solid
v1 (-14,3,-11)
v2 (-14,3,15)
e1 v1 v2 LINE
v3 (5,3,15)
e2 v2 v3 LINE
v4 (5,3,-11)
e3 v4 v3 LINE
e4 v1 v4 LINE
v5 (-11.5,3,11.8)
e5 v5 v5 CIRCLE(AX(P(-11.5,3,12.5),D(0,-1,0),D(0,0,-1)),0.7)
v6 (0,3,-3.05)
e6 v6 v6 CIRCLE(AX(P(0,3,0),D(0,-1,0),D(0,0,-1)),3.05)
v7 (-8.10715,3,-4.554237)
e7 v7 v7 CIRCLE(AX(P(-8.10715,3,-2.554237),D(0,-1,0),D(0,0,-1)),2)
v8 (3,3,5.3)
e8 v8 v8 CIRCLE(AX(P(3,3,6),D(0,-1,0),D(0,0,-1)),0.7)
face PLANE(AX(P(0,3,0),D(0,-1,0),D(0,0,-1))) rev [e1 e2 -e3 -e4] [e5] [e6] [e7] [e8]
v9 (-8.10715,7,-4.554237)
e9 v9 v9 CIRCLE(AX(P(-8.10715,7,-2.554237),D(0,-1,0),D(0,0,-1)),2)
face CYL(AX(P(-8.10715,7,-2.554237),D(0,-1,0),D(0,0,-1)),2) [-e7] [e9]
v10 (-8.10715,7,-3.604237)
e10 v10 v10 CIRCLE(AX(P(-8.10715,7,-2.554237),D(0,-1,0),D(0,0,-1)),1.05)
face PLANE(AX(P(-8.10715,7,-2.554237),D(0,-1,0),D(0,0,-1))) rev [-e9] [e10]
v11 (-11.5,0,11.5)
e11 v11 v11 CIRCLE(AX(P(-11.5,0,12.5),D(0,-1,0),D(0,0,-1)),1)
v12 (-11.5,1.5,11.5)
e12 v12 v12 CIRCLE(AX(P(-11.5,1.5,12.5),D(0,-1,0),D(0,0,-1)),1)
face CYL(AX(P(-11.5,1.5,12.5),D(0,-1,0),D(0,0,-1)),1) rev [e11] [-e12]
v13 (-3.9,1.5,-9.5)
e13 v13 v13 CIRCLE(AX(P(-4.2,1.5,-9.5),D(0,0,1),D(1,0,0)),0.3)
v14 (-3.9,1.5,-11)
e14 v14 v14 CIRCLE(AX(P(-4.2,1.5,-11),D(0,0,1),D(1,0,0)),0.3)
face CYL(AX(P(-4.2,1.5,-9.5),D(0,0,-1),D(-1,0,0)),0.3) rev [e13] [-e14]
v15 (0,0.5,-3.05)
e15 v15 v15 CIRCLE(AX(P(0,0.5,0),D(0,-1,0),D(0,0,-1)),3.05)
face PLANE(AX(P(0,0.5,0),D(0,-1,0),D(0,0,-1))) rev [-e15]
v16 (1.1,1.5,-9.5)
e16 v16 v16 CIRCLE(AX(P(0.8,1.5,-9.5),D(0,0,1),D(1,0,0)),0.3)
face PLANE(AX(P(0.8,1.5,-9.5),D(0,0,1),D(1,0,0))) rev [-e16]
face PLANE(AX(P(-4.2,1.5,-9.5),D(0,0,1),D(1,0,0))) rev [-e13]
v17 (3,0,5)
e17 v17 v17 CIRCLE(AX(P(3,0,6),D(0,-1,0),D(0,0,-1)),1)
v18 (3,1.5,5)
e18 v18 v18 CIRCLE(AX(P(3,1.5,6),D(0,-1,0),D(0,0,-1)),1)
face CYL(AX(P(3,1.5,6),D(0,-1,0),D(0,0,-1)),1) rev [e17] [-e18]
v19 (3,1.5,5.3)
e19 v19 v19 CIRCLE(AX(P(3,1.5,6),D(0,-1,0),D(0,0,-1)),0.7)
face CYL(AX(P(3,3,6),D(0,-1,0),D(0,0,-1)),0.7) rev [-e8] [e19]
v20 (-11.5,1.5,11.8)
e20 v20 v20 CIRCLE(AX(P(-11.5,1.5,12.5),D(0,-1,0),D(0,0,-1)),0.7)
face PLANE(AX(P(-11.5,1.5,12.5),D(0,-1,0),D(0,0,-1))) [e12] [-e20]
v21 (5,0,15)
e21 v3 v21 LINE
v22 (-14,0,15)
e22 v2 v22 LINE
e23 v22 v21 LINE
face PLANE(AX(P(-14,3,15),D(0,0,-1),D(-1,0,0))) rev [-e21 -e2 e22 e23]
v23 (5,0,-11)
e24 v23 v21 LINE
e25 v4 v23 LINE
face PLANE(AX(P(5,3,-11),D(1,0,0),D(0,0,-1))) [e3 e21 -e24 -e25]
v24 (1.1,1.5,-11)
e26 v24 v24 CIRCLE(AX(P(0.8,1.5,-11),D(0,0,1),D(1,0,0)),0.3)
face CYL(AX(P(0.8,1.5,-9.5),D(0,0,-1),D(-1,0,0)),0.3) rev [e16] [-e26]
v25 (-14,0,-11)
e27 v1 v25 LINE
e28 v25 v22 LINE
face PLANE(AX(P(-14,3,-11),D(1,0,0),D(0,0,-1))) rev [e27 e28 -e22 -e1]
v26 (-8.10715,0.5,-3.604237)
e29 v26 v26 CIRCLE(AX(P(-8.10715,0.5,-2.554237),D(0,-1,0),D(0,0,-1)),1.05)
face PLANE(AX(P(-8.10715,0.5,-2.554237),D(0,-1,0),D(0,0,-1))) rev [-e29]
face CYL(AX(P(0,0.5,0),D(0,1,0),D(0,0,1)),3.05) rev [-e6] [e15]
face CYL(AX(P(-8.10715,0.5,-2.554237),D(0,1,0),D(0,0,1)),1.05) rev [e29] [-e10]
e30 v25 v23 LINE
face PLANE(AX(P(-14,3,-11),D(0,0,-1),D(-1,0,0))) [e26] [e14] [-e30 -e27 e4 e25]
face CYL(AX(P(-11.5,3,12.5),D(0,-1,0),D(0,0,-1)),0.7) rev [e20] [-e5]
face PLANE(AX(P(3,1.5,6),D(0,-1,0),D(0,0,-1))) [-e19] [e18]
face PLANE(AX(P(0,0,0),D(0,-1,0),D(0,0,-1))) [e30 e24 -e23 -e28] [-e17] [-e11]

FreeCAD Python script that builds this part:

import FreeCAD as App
import Part
import Sketcher


def add_polygon(sketch, points):
    """Adds a closed chain of lines whose ends are joined by coincident constraints."""
    first, n = sketch.GeometryCount, len(points)
    for a, b in zip(points, points[1:] + points[:1]):
        sketch.addGeometry(Part.LineSegment(App.Vector(*a, 0), App.Vector(*b, 0)), False)
    for i in range(n):
        sketch.addConstraint(Sketcher.Constraint("Coincident", first + i, 2, first + (i + 1) % n, 1))

doc = App.newDocument("Part")
body = doc.addObject("PartDesign::Body", "Body")

sketch1 = body.newObject("Sketcher::SketchObject", "Sketch")
sketch1.AttachmentSupport = (doc.getObject("XZ_Plane"), [""])
sketch1.MapMode = "FlatFace"
add_polygon(sketch1, [(-14, -11), (-14, 15), (5, 15), (5, -11)])
sketch1.addConstraint(Sketcher.Constraint("Vertical", 0))
sketch1.addConstraint(Sketcher.Constraint("Horizontal", 1))
sketch1.addConstraint(Sketcher.Constraint("Vertical", 2))
sketch1.addConstraint(Sketcher.Constraint("Horizontal", 3))
sketch1.addConstraint(Sketcher.Constraint("DistanceX", 1, 1, 1, 2, 19.0))
sketch1.addConstraint(Sketcher.Constraint("DistanceY", 0, 1, 0, 2, 26.0))
sketch1.addConstraint(Sketcher.Constraint("DistanceX", 0, 2, -1, 1, 14.0))
sketch1.addConstraint(Sketcher.Constraint("DistanceY", -1, 1, 0, 2, 15.0))
pad1 = body.newObject("PartDesign::Pad", "Pad")
pad1.Profile = sketch1
pad1.Length = 3
pad1.Reversed = True

sketch2 = body.newObject("Sketcher::SketchObject", "Sketch001")
sketch2.AttachmentSupport = (doc.getObject("XZ_Plane"), [""])
sketch2.MapMode = "FlatFace"
sketch2.AttachmentOffset = App.Placement(App.Vector(0, 0, -3), App.Rotation())
sketch2.addGeometry(Part.Circle(App.Vector(0, 0, 0), App.Vector(0, 0, 1), 3), False)
sketch2.addGeometry(Part.Circle(App.Vector(-8.1, -2.6, 0), App.Vector(0, 0, 1), 1.1), False)
sketch2.addConstraint(Sketcher.Constraint("Coincident", 0, 3, -1, 1))
sketch2.addConstraint(Sketcher.Constraint("Diameter", 0, 6.1))
sketch2.addConstraint(Sketcher.Constraint("Diameter", 1, 2.1))
sketch2.addConstraint(Sketcher.Constraint("DistanceX", 1, 3, -1, 1, 8.10715))
sketch2.addConstraint(Sketcher.Constraint("DistanceY", 1, 3, -1, 1, 2.554237))
pocket1 = body.newObject("PartDesign::Pocket", "Pocket")
pocket1.Profile = sketch2
pocket1.Length = 2.5
pocket1.Reversed = True

sketch3 = body.newObject("Sketcher::SketchObject", "Sketch002")
sketch3.AttachmentSupport = (doc.getObject("XZ_Plane"), [""])
sketch3.MapMode = "FlatFace"
sketch3.addGeometry(Part.Circle(App.Vector(-11.5, 12.5, 0), App.Vector(0, 0, 1), 1), False)
sketch3.addGeometry(Part.Circle(App.Vector(3, 6, 0), App.Vector(0, 0, 1), 1), False)
sketch3.addConstraint(Sketcher.Constraint("Equal", 0, 1))
sketch3.addConstraint(Sketcher.Constraint("Diameter", 0, 2.0))
sketch3.addConstraint(Sketcher.Constraint("DistanceX", -1, 1, 1, 3, 3.0))
sketch3.addConstraint(Sketcher.Constraint("DistanceY", -1, 1, 1, 3, 6.0))
sketch3.addConstraint(Sketcher.Constraint("DistanceX", 0, 3, -1, 1, 11.5))
sketch3.addConstraint(Sketcher.Constraint("DistanceY", -1, 1, 0, 3, 12.5))
pocket2 = body.newObject("PartDesign::Pocket", "Pocket001")
pocket2.Profile = sketch3
pocket2.Length = 1.5

sketch4 = body.newObject("Sketcher::SketchObject", "Sketch003")
sketch4.AttachmentSupport = (doc.getObject("XZ_Plane"), [""])
sketch4.MapMode = "FlatFace"
sketch4.addGeometry(Part.Circle(App.Vector(-11.5, 12.5, 0), App.Vector(0, 0, 1), 0.7), False)
sketch4.addGeometry(Part.Circle(App.Vector(3, 6, 0), App.Vector(0, 0, 1), 0.7), False)
sketch4.addConstraint(Sketcher.Constraint("Equal", 0, 1))
sketch4.addConstraint(Sketcher.Constraint("Diameter", 0, 1.4))
sketch4.addConstraint(Sketcher.Constraint("DistanceX", -1, 1, 1, 3, 3.0))
sketch4.addConstraint(Sketcher.Constraint("DistanceY", -1, 1, 1, 3, 6.0))
sketch4.addConstraint(Sketcher.Constraint("DistanceX", 0, 3, -1, 1, 11.5))
sketch4.addConstraint(Sketcher.Constraint("DistanceY", -1, 1, 0, 3, 12.5))
pocket3 = body.newObject("PartDesign::Pocket", "Pocket002")
pocket3.Profile = sketch4
pocket3.Type = "ThroughAll"

sketch5 = body.newObject("Sketcher::SketchObject", "Sketch004")
sketch5.AttachmentSupport = (doc.getObject("XZ_Plane"), [""])
sketch5.MapMode = "FlatFace"
sketch5.AttachmentOffset = App.Placement(App.Vector(0, 0, -3), App.Rotation())
sketch5.addGeometry(Part.Circle(App.Vector(-8.1, -2.6, 0), App.Vector(0, 0, 1), 2), False)
sketch5.addConstraint(Sketcher.Constraint("Diameter", 0, 4.0))
sketch5.addConstraint(Sketcher.Constraint("DistanceX", 0, 3, -1, 1, 8.10715))
sketch5.addConstraint(Sketcher.Constraint("DistanceY", 0, 3, -1, 1, 2.554237))
pad2 = body.newObject("PartDesign::Pad", "Pad001")
pad2.Profile = sketch5
pad2.Length = 4
pad2.Reversed = True

sketch6 = body.newObject("Sketcher::SketchObject", "Sketch005")
sketch6.AttachmentSupport = (doc.getObject("XZ_Plane"), [""])
sketch6.MapMode = "FlatFace"
sketch6.AttachmentOffset = App.Placement(App.Vector(0, 0, -7), App.Rotation())
sketch6.addGeometry(Part.Circle(App.Vector(-8.1, -2.6, 0), App.Vector(0, 0, 1), 1.1), False)
sketch6.addConstraint(Sketcher.Constraint("Diameter", 0, 2.1))
sketch6.addConstraint(Sketcher.Constraint("DistanceX", 0, 3, -1, 1, 8.10715))
sketch6.addConstraint(Sketcher.Constraint("DistanceY", 0, 3, -1, 1, 2.554237))
pocket4 = body.newObject("PartDesign::Pocket", "Pocket003")
pocket4.Profile = sketch6
pocket4.Length = 4
pocket4.Reversed = True

sketch7 = body.newObject("Sketcher::SketchObject", "Sketch006")
sketch7.AttachmentSupport = (doc.getObject("XY_Plane"), [""])
sketch7.MapMode = "FlatFace"
sketch7.AttachmentOffset = App.Placement(App.Vector(0, 0, -11), App.Rotation())
sketch7.addGeometry(Part.Circle(App.Vector(0.8, 1.5, 0), App.Vector(0, 0, 1), 0.3), False)
sketch7.addGeometry(Part.Circle(App.Vector(-4.2, 1.5, 0), App.Vector(0, 0, 1), 0.3), False)
sketch7.addConstraint(Sketcher.Constraint("Equal", 0, 1))
sketch7.addConstraint(Sketcher.Constraint("Horizontal", 0, 3, 1, 3))
sketch7.addConstraint(Sketcher.Constraint("Diameter", 0, 0.6))
sketch7.addConstraint(Sketcher.Constraint("DistanceX", 1, 3, 0, 3, 5.0))
sketch7.addConstraint(Sketcher.Constraint("DistanceX", -1, 1, 0, 3, 0.8))
sketch7.addConstraint(Sketcher.Constraint("DistanceY", -1, 1, 0, 3, 1.5))
pocket5 = body.newObject("PartDesign::Pocket", "Pocket004")
pocket5.Profile = sketch7
pocket5.Length = 1.5
pocket5.Reversed = True

doc.recompute()
